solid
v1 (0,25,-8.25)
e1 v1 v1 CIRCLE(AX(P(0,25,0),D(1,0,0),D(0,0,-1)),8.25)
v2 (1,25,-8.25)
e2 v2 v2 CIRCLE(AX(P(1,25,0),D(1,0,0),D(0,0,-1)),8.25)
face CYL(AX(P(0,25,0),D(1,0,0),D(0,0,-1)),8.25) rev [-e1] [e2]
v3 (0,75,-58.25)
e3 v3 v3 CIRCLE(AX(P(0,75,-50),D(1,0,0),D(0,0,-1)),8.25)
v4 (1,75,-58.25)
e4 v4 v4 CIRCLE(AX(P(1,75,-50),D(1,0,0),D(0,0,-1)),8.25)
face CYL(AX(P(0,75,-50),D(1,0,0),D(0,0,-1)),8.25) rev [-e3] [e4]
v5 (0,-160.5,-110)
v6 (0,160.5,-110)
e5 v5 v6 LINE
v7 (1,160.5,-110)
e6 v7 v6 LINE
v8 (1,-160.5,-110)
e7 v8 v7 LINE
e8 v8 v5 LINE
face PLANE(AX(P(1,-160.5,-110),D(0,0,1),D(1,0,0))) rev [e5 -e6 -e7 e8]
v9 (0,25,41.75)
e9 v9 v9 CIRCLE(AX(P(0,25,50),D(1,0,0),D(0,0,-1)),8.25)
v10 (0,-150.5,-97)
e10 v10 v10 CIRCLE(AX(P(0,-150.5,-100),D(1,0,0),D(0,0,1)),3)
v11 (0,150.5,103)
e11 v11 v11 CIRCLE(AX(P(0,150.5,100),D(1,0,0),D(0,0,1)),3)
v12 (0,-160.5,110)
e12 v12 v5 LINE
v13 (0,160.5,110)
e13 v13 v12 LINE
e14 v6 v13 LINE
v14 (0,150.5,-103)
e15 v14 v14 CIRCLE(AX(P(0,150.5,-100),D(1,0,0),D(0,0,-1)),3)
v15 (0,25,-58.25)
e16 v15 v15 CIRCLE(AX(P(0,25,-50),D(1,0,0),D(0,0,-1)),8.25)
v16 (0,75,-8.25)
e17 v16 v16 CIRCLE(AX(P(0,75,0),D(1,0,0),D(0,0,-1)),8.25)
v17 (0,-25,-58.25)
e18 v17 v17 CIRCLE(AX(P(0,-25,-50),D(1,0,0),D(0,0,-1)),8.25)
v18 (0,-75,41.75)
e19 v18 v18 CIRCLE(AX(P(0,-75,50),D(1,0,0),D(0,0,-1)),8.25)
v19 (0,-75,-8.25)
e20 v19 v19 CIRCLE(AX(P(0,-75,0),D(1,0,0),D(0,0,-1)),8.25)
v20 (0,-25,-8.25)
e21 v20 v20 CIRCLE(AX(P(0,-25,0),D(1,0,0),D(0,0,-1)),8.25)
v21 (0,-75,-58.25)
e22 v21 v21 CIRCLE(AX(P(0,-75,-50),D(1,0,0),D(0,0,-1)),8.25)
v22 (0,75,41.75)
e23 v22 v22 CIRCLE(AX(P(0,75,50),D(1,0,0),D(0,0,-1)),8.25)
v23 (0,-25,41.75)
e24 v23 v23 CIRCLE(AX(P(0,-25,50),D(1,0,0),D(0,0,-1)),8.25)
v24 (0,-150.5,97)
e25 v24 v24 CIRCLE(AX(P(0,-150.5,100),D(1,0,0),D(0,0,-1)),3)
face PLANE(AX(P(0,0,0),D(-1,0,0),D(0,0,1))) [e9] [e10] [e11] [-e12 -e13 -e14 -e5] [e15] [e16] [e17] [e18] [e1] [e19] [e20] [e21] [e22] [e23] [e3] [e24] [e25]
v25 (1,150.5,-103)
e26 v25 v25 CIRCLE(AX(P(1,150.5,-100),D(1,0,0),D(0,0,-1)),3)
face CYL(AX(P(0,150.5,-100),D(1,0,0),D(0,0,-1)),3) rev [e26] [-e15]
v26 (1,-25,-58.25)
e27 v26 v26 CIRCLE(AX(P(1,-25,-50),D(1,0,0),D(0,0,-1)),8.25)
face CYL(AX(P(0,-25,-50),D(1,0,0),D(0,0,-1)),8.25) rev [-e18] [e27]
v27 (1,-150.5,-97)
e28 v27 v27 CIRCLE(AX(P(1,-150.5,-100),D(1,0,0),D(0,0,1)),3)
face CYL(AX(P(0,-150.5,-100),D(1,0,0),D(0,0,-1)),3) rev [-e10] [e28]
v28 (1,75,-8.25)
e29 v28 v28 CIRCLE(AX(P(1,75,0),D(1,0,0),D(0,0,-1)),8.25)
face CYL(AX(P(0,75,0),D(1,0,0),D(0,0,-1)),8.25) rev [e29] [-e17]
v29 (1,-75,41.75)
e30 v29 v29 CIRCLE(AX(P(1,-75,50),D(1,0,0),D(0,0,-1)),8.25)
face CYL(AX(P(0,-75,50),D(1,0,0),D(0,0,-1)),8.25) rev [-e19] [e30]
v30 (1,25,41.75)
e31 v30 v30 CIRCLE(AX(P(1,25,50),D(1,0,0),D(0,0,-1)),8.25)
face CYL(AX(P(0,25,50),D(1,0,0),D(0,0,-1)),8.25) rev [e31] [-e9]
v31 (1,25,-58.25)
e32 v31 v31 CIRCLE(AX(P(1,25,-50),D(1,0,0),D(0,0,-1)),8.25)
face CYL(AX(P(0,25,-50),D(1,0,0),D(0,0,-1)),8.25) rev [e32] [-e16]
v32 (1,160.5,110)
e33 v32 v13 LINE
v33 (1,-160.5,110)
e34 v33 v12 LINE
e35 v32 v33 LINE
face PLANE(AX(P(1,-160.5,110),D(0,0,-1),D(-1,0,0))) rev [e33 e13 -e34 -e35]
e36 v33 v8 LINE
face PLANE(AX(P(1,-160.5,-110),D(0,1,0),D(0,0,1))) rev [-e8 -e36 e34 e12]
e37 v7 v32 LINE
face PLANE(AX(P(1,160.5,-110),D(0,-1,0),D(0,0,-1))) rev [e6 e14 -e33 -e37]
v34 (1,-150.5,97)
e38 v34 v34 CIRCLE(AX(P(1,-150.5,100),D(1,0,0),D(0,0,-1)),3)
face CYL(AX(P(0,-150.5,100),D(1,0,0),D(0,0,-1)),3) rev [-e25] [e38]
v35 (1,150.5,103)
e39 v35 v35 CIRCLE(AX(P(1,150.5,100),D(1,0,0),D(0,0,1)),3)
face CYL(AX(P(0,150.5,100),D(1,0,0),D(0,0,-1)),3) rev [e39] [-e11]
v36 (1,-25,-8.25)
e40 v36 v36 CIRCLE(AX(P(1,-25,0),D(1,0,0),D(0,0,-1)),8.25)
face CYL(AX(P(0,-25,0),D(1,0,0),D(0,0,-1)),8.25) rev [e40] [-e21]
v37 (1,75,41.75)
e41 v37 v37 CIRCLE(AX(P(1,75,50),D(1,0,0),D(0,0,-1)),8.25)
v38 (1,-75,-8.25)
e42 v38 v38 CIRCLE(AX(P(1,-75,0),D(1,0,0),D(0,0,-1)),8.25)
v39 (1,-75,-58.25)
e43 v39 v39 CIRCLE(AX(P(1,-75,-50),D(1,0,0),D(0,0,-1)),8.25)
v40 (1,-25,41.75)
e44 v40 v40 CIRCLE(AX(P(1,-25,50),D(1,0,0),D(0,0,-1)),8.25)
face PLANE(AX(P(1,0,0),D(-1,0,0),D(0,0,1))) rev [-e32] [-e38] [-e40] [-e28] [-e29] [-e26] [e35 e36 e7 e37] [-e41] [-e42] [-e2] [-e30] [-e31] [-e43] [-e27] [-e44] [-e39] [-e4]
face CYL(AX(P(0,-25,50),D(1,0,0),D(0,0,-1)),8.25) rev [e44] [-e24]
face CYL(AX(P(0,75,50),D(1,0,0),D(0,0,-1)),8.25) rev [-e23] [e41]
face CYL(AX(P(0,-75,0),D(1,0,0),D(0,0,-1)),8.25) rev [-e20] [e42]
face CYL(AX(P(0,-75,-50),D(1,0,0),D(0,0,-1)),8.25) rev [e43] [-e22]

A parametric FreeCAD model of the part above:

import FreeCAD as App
import Part
import Sketcher

V = App.Vector

doc = App.newDocument("Part")
body = doc.addObject("PartDesign::Body", "Body")

# Sketch on YZ plane
sketch1 = body.newObject("Sketcher::SketchObject", "Sketch")
sketch1.AttachmentSupport = (doc.getObject("YZ_Plane"), [""])
sketch1.MapMode = "FlatFace"
sketch1.addGeometry(Part.LineSegment(V(-160.5, 110, 0), V(-160.5, -110, 0)), False)
sketch1.addGeometry(Part.LineSegment(V(-160.5, -110, 0), V(160.5, -110, 0)), False)
sketch1.addGeometry(Part.LineSegment(V(160.5, -110, 0), V(160.5, 110, 0)), False)
sketch1.addGeometry(Part.LineSegment(V(160.5, 110, 0), V(-160.5, 110, 0)), False)
sketch1.addConstraint(Sketcher.Constraint("Coincident", 0, 2, 1, 1))
sketch1.addConstraint(Sketcher.Constraint("Coincident", 1, 2, 2, 1))
sketch1.addConstraint(Sketcher.Constraint("Coincident", 2, 2, 3, 1))
sketch1.addConstraint(Sketcher.Constraint("Coincident", 3, 2, 0, 1))
sketch1.addConstraint(Sketcher.Constraint("Vertical", 0))
sketch1.addConstraint(Sketcher.Constraint("Horizontal", 1))
sketch1.addConstraint(Sketcher.Constraint("Vertical", 2))
sketch1.addConstraint(Sketcher.Constraint("Horizontal", 3))
sketch1.addConstraint(Sketcher.Constraint("Symmetric", 0, 2, 2, 2, -1, 1))
sketch1.addConstraint(Sketcher.Constraint("DistanceX", 1, 1, 1, 2, 321.0))
sketch1.addConstraint(Sketcher.Constraint("DistanceY", 0, 2, 0, 1, 220.0))
pad1 = body.newObject("PartDesign::Pad", "Pad")
pad1.Profile = sketch1
pad1.Length = 1

# Sketch on YZ plane
sketch2 = body.newObject("Sketcher::SketchObject", "Sketch001")
sketch2.AttachmentSupport = (doc.getObject("YZ_Plane"), [""])
sketch2.MapMode = "FlatFace"
sketch2.AttachmentOffset = App.Placement(V(0, 0, 1), App.Rotation())
sketch2.addGeometry(Part.Circle(V(-75, 50, 0), V(0, 0, 1), 8.25), False)
sketch2.addGeometry(Part.Circle(V(-25, 50, 0), V(0, 0, 1), 8.25), False)
sketch2.addGeometry(Part.Circle(V(25, 50, 0), V(0, 0, 1), 8.25), False)
sketch2.addGeometry(Part.Circle(V(75, 50, 0), V(0, 0, 1), 8.25), False)
sketch2.addGeometry(Part.Circle(V(-25, 0, 0), V(0, 0, 1), 8.25), False)
sketch2.addGeometry(Part.Circle(V(25, 0, 0), V(0, 0, 1), 8.25), False)
sketch2.addGeometry(Part.Circle(V(75, 0, 0), V(0, 0, 1), 8.25), False)
sketch2.addGeometry(Part.Circle(V(-25, -50, 0), V(0, 0, 1), 8.25), False)
sketch2.addGeometry(Part.Circle(V(25, -50, 0), V(0, 0, 1), 8.25), False)
sketch2.addGeometry(Part.Circle(V(75, -50, 0), V(0, 0, 1), 8.25), False)
sketch2.addGeometry(Part.Circle(V(-75, 0, 0), V(0, 0, 1), 8.25), False)
sketch2.addGeometry(Part.Circle(V(-75, -50, 0), V(0, 0, 1), 8.25), False)
sketch2.addConstraint(Sketcher.Constraint("Equal", 0, 1))
sketch2.addConstraint(Sketcher.Constraint("Equal", 1, 2))
sketch2.addConstraint(Sketcher.Constraint("Equal", 2, 3))
sketch2.addConstraint(Sketcher.Constraint("Equal", 3, 4))
sketch2.addConstraint(Sketcher.Constraint("Equal", 4, 5))
sketch2.addConstraint(Sketcher.Constraint("Equal", 5, 6))
sketch2.addConstraint(Sketcher.Constraint("Equal", 6, 7))
sketch2.addConstraint(Sketcher.Constraint("Equal", 7, 8))
sketch2.addConstraint(Sketcher.Constraint("Equal", 8, 9))
sketch2.addConstraint(Sketcher.Constraint("Equal", 9, 10))
sketch2.addConstraint(Sketcher.Constraint("Equal", 10, 11))
sketch2.addConstraint(Sketcher.Constraint("Symmetric", 4, 3, 5, 3, -1, 1))
sketch2.addConstraint(Sketcher.Constraint("Symmetric", 2, 3, 7, 3, -1, 1))
sketch2.addConstraint(Sketcher.Constraint("Symmetric", 1, 3, 8, 3, -1, 1))
sketch2.addConstraint(Sketcher.Constraint("Symmetric", 0, 3, 9, 3, -1, 1))
sketch2.addConstraint(Sketcher.Constraint("Symmetric", 6, 3, 10, 3, -1, 1))
sketch2.addConstraint(Sketcher.Constraint("Symmetric", 3, 3, 11, 3, -1, 1))
sketch2.addConstraint(Sketcher.Constraint("Symmetric", 1, 3, 2, 3, -2))
sketch2.addConstraint(Sketcher.Constraint("Symmetric", 0, 3, 3, 3, -2))
sketch2.addConstraint(Sketcher.Constraint("PointOnObject", 4, 3, -1))
sketch2.addConstraint(Sketcher.Constraint("PointOnObject", 6, 3, -1))
sketch2.addConstraint(Sketcher.Constraint("Horizontal", 0, 3, 1, 3))
sketch2.addConstraint(Sketcher.Constraint("Vertical", 1, 3, 4, 3))
sketch2.addConstraint(Sketcher.Constraint("Vertical", 3, 3, 6, 3))
sketch2.addConstraint(Sketcher.Constraint("Diameter", 0, 16.5))
sketch2.addConstraint(Sketcher.Constraint("DistanceX", 0, 3, -1, 1, 75.0))
sketch2.addConstraint(Sketcher.Constraint("DistanceY", -1, 1, 0, 3, 50.0))
sketch2.addConstraint(Sketcher.Constraint("DistanceX", 1, 3, -1, 1, 25.0))
pocket1 = body.newObject("PartDesign::Pocket", "Pocket")
pocket1.Profile = sketch2
pocket1.Type = "ThroughAll"

# Sketch on YZ plane
sketch3 = body.newObject("Sketcher::SketchObject", "Sketch002")
sketch3.AttachmentSupport = (doc.getObject("YZ_Plane"), [""])
sketch3.MapMode = "FlatFace"
sketch3.AttachmentOffset = App.Placement(V(0, 0, 1), App.Rotation())
sketch3.addGeometry(Part.Circle(V(-150.5, 100, 0), V(0, 0, 1), 3), False)
sketch3.addGeometry(Part.Circle(V(150.5, 100, 0), V(0, 0, 1), 3), False)
sketch3.addGeometry(Part.Circle(V(-150.5, -100, 0), V(0, 0, 1), 3), False)
sketch3.addGeometry(Part.Circle(V(150.5, -100, 0), V(0, 0, 1), 3), False)
sketch3.addConstraint(Sketcher.Constraint("Equal", 0, 1))
sketch3.addConstraint(Sketcher.Constraint("Equal", 1, 2))
sketch3.addConstraint(Sketcher.Constraint("Equal", 2, 3))
sketch3.addConstraint(Sketcher.Constraint("Symmetric", 1, 3, 2, 3, -1, 1))
sketch3.addConstraint(Sketcher.Constraint("Symmetric", 0, 3, 3, 3, -1, 1))
sketch3.addConstraint(Sketcher.Constraint("Symmetric", 0, 3, 1, 3, -2))
sketch3.addConstraint(Sketcher.Constraint("Diameter", 0, 6.0))
sketch3.addConstraint(Sketcher.Constraint("DistanceY", -1, 1, 0, 3, 100.0))
sketch3.addConstraint(Sketcher.Constraint("DistanceX", 0, 3, 1, 3, 301.0))
pocket2 = body.newObject("PartDesign::Pocket", "Pocket001")
pocket2.Profile = sketch3
pocket2.Type = "ThroughAll"

doc.recompute()
